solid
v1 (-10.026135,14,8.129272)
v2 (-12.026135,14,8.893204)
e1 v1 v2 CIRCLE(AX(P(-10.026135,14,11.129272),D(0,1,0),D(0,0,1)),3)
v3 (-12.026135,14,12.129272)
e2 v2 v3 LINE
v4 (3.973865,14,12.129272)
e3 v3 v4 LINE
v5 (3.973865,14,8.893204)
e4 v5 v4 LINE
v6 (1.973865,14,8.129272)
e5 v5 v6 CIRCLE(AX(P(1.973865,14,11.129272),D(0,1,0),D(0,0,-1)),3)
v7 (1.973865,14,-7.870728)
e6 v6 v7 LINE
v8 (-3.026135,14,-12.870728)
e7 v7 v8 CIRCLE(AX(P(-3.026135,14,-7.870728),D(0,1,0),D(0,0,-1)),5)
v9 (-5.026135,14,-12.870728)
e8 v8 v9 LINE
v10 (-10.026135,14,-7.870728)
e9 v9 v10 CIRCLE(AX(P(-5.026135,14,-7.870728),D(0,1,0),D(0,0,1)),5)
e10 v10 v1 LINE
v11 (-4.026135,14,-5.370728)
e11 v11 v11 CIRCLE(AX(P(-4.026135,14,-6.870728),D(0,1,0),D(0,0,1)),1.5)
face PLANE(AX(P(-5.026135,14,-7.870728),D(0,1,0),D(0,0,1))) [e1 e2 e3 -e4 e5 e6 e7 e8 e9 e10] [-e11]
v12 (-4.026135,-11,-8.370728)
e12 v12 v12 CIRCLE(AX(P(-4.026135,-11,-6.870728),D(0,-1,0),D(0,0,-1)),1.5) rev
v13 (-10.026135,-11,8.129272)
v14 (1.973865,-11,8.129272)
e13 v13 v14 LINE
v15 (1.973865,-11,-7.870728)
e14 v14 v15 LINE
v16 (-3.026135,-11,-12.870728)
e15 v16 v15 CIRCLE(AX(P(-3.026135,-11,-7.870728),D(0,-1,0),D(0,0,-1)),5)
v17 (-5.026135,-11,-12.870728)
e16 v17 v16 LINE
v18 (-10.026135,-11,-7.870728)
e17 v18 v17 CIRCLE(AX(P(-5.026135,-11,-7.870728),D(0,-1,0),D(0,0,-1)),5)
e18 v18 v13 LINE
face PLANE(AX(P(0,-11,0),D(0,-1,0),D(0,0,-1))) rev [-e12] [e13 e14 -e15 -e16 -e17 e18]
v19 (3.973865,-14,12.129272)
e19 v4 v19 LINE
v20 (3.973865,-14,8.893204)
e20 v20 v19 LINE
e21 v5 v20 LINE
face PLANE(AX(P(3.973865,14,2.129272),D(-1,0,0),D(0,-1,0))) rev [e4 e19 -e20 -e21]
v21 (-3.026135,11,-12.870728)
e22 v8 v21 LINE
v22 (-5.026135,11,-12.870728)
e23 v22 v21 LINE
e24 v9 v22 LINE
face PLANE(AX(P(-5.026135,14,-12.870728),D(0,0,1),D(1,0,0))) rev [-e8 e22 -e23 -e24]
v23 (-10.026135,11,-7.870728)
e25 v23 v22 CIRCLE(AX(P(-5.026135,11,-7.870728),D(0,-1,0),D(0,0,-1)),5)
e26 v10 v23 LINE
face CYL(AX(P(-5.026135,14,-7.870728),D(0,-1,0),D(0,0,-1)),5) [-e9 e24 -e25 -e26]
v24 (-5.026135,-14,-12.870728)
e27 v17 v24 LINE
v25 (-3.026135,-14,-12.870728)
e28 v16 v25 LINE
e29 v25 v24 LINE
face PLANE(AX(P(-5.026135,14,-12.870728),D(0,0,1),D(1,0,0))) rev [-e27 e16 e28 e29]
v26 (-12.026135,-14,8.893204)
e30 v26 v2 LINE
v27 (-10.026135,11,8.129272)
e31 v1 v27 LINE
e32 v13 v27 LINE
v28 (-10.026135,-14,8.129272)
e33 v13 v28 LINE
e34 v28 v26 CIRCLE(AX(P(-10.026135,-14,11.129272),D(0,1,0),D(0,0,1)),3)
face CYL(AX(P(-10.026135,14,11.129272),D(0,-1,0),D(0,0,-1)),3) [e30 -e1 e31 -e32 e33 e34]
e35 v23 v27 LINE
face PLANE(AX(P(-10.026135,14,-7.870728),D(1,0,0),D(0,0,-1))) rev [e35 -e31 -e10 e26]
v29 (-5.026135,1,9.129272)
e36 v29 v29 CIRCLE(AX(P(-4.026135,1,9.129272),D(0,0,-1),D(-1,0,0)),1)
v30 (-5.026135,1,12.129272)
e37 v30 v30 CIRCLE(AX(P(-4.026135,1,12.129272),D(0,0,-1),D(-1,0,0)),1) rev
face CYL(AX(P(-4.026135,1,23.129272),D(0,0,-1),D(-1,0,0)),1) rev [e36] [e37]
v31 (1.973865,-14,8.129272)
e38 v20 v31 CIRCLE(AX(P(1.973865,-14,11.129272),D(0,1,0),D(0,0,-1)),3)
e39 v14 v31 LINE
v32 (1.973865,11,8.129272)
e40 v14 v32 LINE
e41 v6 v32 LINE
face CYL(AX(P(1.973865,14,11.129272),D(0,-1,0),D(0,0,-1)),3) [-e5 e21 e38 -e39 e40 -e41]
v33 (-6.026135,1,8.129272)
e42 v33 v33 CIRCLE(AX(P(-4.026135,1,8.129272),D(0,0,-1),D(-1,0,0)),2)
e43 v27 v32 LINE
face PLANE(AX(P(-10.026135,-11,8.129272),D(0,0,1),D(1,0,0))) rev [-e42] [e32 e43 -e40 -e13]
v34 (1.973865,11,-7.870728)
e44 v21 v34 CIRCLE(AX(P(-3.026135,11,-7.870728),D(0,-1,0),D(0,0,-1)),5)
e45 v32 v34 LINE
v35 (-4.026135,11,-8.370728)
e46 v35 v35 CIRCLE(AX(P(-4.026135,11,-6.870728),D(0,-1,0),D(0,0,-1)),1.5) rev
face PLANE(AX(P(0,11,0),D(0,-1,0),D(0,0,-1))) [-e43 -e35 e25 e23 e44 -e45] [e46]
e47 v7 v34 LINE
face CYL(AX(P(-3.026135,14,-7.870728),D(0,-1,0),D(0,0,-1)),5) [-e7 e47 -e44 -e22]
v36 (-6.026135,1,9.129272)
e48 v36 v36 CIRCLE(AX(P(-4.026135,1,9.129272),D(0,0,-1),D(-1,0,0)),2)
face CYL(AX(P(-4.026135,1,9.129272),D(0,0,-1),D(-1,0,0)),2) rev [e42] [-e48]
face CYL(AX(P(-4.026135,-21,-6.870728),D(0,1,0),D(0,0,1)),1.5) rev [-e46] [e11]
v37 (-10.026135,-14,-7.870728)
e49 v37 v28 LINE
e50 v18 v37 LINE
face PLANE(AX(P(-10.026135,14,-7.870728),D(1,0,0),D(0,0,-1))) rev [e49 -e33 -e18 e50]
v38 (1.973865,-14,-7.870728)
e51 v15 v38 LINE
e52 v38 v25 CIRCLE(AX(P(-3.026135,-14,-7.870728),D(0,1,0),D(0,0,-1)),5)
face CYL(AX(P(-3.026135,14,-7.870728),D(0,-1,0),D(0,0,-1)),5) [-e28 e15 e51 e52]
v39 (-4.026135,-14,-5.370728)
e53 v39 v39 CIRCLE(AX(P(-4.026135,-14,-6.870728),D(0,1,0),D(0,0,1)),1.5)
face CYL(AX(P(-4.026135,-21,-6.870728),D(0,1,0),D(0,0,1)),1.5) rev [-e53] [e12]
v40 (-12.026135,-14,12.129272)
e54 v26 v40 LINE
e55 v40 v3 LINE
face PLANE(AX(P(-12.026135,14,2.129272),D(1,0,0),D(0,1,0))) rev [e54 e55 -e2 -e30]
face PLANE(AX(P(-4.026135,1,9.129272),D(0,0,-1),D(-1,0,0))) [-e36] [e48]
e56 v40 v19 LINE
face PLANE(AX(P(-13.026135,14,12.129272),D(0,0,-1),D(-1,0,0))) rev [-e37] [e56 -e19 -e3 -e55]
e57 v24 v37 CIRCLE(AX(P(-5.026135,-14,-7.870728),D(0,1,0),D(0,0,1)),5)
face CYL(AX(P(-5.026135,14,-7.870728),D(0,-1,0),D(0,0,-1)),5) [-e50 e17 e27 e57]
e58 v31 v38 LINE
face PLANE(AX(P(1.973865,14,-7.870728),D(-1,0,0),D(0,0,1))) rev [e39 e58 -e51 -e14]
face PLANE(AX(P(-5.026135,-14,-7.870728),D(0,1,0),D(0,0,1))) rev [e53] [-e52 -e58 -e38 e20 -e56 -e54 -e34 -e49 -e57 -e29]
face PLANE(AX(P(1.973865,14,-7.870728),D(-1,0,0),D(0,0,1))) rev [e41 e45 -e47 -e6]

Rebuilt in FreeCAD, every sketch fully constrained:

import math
import FreeCAD as App
import Part
import Sketcher
Q = App.Units.Quantity


def add_polygon(sketch, points):
    """Adds a closed chain of lines whose ends are joined by coincident constraints."""
    first, n = sketch.GeometryCount, len(points)
    for a, b in zip(points, points[1:] + points[:1]):
        sketch.addGeometry(Part.LineSegment(App.Vector(*a, 0), App.Vector(*b, 0)), False)
    for i in range(n):
        sketch.addConstraint(Sketcher.Constraint("Coincident", first + i, 2, first + (i + 1) % n, 1))

doc = App.newDocument("Part")
body = doc.addObject("PartDesign::Body", "Body")

sketch1 = body.newObject("Sketcher::SketchObject", "Sketch")
sketch1.AttachmentSupport = (doc.getObject("XZ_Plane"), [""])
sketch1.MapMode = "FlatFace"
sketch1.addGeometry(Part.LineSegment(App.Vector(-3.026135, -12.870728, 0), App.Vector(-5.026135, -12.870728, 0)), False)
sketch1.addGeometry(Part.ArcOfCircle(Part.Circle(App.Vector(-5.026135, -7.870728, 0), App.Vector(0, 0, 1), 5), math.radians(180), math.radians(270)), False)
sketch1.addGeometry(Part.LineSegment(App.Vector(-10.026135, -7.870728, 0), App.Vector(-10.026135, 8.129272, 0)), False)
sketch1.addGeometry(Part.LineSegment(App.Vector(-10.026135, 8.129272, 0), App.Vector(1.973865, 8.129272, 0)), False)
sketch1.addGeometry(Part.LineSegment(App.Vector(1.973865, 8.129272, 0), App.Vector(1.973865, -7.870728, 0)), False)
sketch1.addGeometry(Part.ArcOfCircle(Part.Circle(App.Vector(-3.026135, -7.870728, 0), App.Vector(0, 0, 1), 5), math.radians(-90), math.radians(0)), False)
sketch1.addConstraint(Sketcher.Constraint("Tangent", 0, 2, 1, 2))
sketch1.addConstraint(Sketcher.Constraint("Tangent", 1, 1, 2, 1))
sketch1.addConstraint(Sketcher.Constraint("Coincident", 2, 2, 3, 1))
sketch1.addConstraint(Sketcher.Constraint("Coincident", 3, 2, 4, 1))
sketch1.addConstraint(Sketcher.Constraint("Tangent", 4, 2, 5, 2))
sketch1.addConstraint(Sketcher.Constraint("Tangent", 5, 1, 0, 1))
sketch1.addConstraint(Sketcher.Constraint("Horizontal", 0))
sketch1.addConstraint(Sketcher.Constraint("Vertical", 2))
sketch1.addConstraint(Sketcher.Constraint("Horizontal", 3))
sketch1.addConstraint(Sketcher.Constraint("Vertical", 4))
sketch1.addConstraint(Sketcher.Constraint("Equal", 1, 5))
sketch1.addConstraint(Sketcher.Constraint("Radius", 1, Q("5 mm")))
sketch1.addConstraint(Sketcher.Constraint("DistanceX", 0, 2, 0, 1, Q("2 mm")))
sketch1.addConstraint(Sketcher.Constraint("DistanceY", 2, 1, 2, 2, Q("16 mm")))
sketch1.addConstraint(Sketcher.Constraint("DistanceY", 1, 3, -1, 1, Q("7.870728 mm")))
sketch1.addConstraint(Sketcher.Constraint("DistanceX", 1, 3, -1, 1, Q("5.026135 mm")))
pad1 = body.newObject("PartDesign::Pad", "Pad")
pad1.Profile = sketch1
pad1.Length = 28
pad1.Midplane = True

sketch2 = body.newObject("Sketcher::SketchObject", "Sketch001")
sketch2.AttachmentSupport = (doc.getObject("XZ_Plane"), [""])
sketch2.MapMode = "FlatFace"
sketch2.addGeometry(Part.Circle(App.Vector(-4.026135, -6.870728, 0), App.Vector(0, 0, 1), 1.5), False)
sketch2.addConstraint(Sketcher.Constraint("Diameter", 0, Q("3 mm")))
sketch2.addConstraint(Sketcher.Constraint("DistanceY", 0, 3, -1, 1, Q("6.870728 mm")))
sketch2.addConstraint(Sketcher.Constraint("DistanceX", 0, 3, -1, 1, Q("4.026135 mm")))
pocket1 = body.newObject("PartDesign::Pocket", "Pocket")
pocket1.Profile = sketch2
pocket1.Length = 42
pocket1.Midplane = True

sketch3 = body.newObject("Sketcher::SketchObject", "Sketch002")
sketch3.AttachmentSupport = (doc.getObject("XZ_Plane"), [""])
sketch3.MapMode = "FlatFace"
sketch3.addGeometry(Part.LineSegment(App.Vector(1.973865, 8.129272, 0), App.Vector(-10.026135, 8.129272, 0)), False)
sketch3.addGeometry(Part.ArcOfCircle(Part.Circle(App.Vector(-10.026135, 11.129272, 0), App.Vector(0, 0, 1), 3), math.radians(180), math.radians(270)), False)
sketch3.addGeometry(Part.LineSegment(App.Vector(-13.026135, 11.129272, 0), App.Vector(-13.026135, 12.129272, 0)), False)
sketch3.addGeometry(Part.LineSegment(App.Vector(-13.026135, 12.129272, 0), App.Vector(4.973865, 12.129272, 0)), False)
sketch3.addGeometry(Part.LineSegment(App.Vector(4.973865, 12.129272, 0), App.Vector(4.973865, 11.129272, 0)), False)
sketch3.addGeometry(Part.ArcOfCircle(Part.Circle(App.Vector(1.973865, 11.129272, 0), App.Vector(0, 0, 1), 3), math.radians(-90), math.radians(0)), False)
sketch3.addConstraint(Sketcher.Constraint("Tangent", 0, 2, 1, 2))
sketch3.addConstraint(Sketcher.Constraint("Tangent", 1, 1, 2, 1))
sketch3.addConstraint(Sketcher.Constraint("Coincident", 2, 2, 3, 1))
sketch3.addConstraint(Sketcher.Constraint("Coincident", 3, 2, 4, 1))
sketch3.addConstraint(Sketcher.Constraint("Tangent", 4, 2, 5, 2))
sketch3.addConstraint(Sketcher.Constraint("Tangent", 5, 1, 0, 1))
sketch3.addConstraint(Sketcher.Constraint("Horizontal", 0))
sketch3.addConstraint(Sketcher.Constraint("Vertical", 2))
sketch3.addConstraint(Sketcher.Constraint("Horizontal", 3))
sketch3.addConstraint(Sketcher.Constraint("Vertical", 4))
sketch3.addConstraint(Sketcher.Constraint("Equal", 1, 5))
sketch3.addConstraint(Sketcher.Constraint("Radius", 1, Q("3 mm")))
sketch3.addConstraint(Sketcher.Constraint("DistanceX", 0, 2, 0, 1, Q("12 mm")))
sketch3.addConstraint(Sketcher.Constraint("DistanceY", 2, 1, 2, 2, Q("1 mm")))
sketch3.addConstraint(Sketcher.Constraint("DistanceY", -1, 1, 1, 3, Q("11.129272 mm")))
sketch3.addConstraint(Sketcher.Constraint("DistanceX", 1, 3, -1, 1, Q("10.026135 mm")))
pad2 = body.newObject("PartDesign::Pad", "Pad001")
pad2.Profile = sketch3
pad2.Length = 28
pad2.Midplane = True

sketch4 = body.newObject("Sketcher::SketchObject", "Sketch003")
sketch4.AttachmentSupport = (doc.getObject("XZ_Plane"), [""])
sketch4.MapMode = "FlatFace"
add_polygon(sketch4, [(-10.026135, -18.679494), (-10.026135, 8.129272), (1.973865, 8.129272), (1.973865, -18.679494)])
sketch4.addConstraint(Sketcher.Constraint("Vertical", 0))
sketch4.addConstraint(Sketcher.Constraint("Horizontal", 1))
sketch4.addConstraint(Sketcher.Constraint("Vertical", 2))
sketch4.addConstraint(Sketcher.Constraint("Horizontal", 3))
sketch4.addConstraint(Sketcher.Constraint("DistanceX", 1, 1, 1, 2, Q("12 mm")))
sketch4.addConstraint(Sketcher.Constraint("DistanceY", 0, 1, 0, 2, Q("26.808765 mm")))
sketch4.addConstraint(Sketcher.Constraint("DistanceY", -1, 1, 0, 2, Q("8.129272 mm")))
sketch4.addConstraint(Sketcher.Constraint("DistanceX", 0, 2, -1, 1, Q("10.026135 mm")))
pocket2 = body.newObject("PartDesign::Pocket", "Pocket001")
pocket2.Profile = sketch4
pocket2.Length = 22
pocket2.Midplane = True

sketch5 = body.newObject("Sketcher::SketchObject", "Sketch004")
sketch5.AttachmentSupport = (doc.getObject("XY_Plane"), [""])
sketch5.MapMode = "FlatFace"
sketch5.AttachmentOffset = App.Placement(App.Vector(0, 0, 12.129272), App.Rotation())
sketch5.addGeometry(Part.Circle(App.Vector(-4.026135, 1, 0), App.Vector(0, 0, 1), 1), False)
sketch5.addConstraint(Sketcher.Constraint("Diameter", 0, Q("2 mm")))
sketch5.addConstraint(Sketcher.Constraint("DistanceY", -1, 1, 0, 3, Q("1 mm")))
sketch5.addConstraint(Sketcher.Constraint("DistanceX", 0, 3, -1, 1, Q("4.026135 mm")))
pocket3 = body.newObject("PartDesign::Pocket", "Pocket002")
pocket3.Profile = sketch5
pocket3.Length = 22
pocket3.Midplane = True

sketch6 = body.newObject("Sketcher::SketchObject", "Sketch005")
sketch6.AttachmentSupport = (doc.getObject("XY_Plane"), [""])
sketch6.MapMode = "FlatFace"
sketch6.AttachmentOffset = App.Placement(App.Vector(0, 0, 8.129272), App.Rotation())
sketch6.addGeometry(Part.Circle(App.Vector(-4.026135, 1, 0), App.Vector(0, 0, 1), 2), False)
sketch6.addConstraint(Sketcher.Constraint("Diameter", 0, Q("4 mm")))
sketch6.addConstraint(Sketcher.Constraint("DistanceY", -1, 1, 0, 3, Q("1 mm")))
sketch6.addConstraint(Sketcher.Constraint("DistanceX", 0, 3, -1, 1, Q("4.026135 mm")))
pocket4 = body.newObject("PartDesign::Pocket", "Pocket003")
pocket4.Profile = sketch6
pocket4.Length = 1
pocket4.Reversed = True

sketch7 = body.newObject("Sketcher::SketchObject", "Sketch006")
sketch7.AttachmentSupport = (doc.getObject("XY_Plane"), [""])
sketch7.MapMode = "FlatFace"
sketch7.AttachmentOffset = App.Placement(App.Vector(0, 0, 12.129272), App.Rotation())
add_polygon(sketch7, [(-13.026135, 14), (-13.026135, -14), (-12.026135, -14), (-12.026135, 14)])
add_polygon(sketch7, [(3.973865, 14), (3.973865, -14), (4.973865, -14), (4.973865, 14)])
sketch7.addConstraint(Sketcher.Constraint("Vertical", 0))
sketch7.addConstraint(Sketcher.Constraint("Horizontal", 1))
sketch7.addConstraint(Sketcher.Constraint("Vertical", 2))
sketch7.addConstraint(Sketcher.Constraint("Horizontal", 3))
sketch7.addConstraint(Sketcher.Constraint("Vertical", 4))
sketch7.addConstraint(Sketcher.Constraint("Horizontal", 5))
sketch7.addConstraint(Sketcher.Constraint("Vertical", 6))
sketch7.addConstraint(Sketcher.Constraint("Horizontal", 7))
sketch7.addConstraint(Sketcher.Constraint("Horizontal", 1, 2, 4, 2))
sketch7.addConstraint(Sketcher.Constraint("Horizontal", 3, 2, 6, 2))
sketch7.addConstraint(Sketcher.Constraint("Equal", 3, 5))
sketch7.addConstraint(Sketcher.Constraint("DistanceX", 1, 1, 1, 2, Q("1 mm")))
sketch7.addConstraint(Sketcher.Constraint("DistanceY", 0, 2, 0, 1, Q("28 mm")))
sketch7.addConstraint(Sketcher.Constraint("DistanceY", 0, 2, -1, 1, Q("14 mm")))
sketch7.addConstraint(Sketcher.Constraint("DistanceX", 1, 2, 4, 2, Q("16 mm")))
sketch7.addConstraint(Sketcher.Constraint("DistanceX", 0, 2, -1, 1, Q("13.026135 mm")))
pocket5 = body.newObject("PartDesign::Pocket", "Pocket004")
pocket5.Profile = sketch7
pocket5.Length = 10

doc.recompute()
